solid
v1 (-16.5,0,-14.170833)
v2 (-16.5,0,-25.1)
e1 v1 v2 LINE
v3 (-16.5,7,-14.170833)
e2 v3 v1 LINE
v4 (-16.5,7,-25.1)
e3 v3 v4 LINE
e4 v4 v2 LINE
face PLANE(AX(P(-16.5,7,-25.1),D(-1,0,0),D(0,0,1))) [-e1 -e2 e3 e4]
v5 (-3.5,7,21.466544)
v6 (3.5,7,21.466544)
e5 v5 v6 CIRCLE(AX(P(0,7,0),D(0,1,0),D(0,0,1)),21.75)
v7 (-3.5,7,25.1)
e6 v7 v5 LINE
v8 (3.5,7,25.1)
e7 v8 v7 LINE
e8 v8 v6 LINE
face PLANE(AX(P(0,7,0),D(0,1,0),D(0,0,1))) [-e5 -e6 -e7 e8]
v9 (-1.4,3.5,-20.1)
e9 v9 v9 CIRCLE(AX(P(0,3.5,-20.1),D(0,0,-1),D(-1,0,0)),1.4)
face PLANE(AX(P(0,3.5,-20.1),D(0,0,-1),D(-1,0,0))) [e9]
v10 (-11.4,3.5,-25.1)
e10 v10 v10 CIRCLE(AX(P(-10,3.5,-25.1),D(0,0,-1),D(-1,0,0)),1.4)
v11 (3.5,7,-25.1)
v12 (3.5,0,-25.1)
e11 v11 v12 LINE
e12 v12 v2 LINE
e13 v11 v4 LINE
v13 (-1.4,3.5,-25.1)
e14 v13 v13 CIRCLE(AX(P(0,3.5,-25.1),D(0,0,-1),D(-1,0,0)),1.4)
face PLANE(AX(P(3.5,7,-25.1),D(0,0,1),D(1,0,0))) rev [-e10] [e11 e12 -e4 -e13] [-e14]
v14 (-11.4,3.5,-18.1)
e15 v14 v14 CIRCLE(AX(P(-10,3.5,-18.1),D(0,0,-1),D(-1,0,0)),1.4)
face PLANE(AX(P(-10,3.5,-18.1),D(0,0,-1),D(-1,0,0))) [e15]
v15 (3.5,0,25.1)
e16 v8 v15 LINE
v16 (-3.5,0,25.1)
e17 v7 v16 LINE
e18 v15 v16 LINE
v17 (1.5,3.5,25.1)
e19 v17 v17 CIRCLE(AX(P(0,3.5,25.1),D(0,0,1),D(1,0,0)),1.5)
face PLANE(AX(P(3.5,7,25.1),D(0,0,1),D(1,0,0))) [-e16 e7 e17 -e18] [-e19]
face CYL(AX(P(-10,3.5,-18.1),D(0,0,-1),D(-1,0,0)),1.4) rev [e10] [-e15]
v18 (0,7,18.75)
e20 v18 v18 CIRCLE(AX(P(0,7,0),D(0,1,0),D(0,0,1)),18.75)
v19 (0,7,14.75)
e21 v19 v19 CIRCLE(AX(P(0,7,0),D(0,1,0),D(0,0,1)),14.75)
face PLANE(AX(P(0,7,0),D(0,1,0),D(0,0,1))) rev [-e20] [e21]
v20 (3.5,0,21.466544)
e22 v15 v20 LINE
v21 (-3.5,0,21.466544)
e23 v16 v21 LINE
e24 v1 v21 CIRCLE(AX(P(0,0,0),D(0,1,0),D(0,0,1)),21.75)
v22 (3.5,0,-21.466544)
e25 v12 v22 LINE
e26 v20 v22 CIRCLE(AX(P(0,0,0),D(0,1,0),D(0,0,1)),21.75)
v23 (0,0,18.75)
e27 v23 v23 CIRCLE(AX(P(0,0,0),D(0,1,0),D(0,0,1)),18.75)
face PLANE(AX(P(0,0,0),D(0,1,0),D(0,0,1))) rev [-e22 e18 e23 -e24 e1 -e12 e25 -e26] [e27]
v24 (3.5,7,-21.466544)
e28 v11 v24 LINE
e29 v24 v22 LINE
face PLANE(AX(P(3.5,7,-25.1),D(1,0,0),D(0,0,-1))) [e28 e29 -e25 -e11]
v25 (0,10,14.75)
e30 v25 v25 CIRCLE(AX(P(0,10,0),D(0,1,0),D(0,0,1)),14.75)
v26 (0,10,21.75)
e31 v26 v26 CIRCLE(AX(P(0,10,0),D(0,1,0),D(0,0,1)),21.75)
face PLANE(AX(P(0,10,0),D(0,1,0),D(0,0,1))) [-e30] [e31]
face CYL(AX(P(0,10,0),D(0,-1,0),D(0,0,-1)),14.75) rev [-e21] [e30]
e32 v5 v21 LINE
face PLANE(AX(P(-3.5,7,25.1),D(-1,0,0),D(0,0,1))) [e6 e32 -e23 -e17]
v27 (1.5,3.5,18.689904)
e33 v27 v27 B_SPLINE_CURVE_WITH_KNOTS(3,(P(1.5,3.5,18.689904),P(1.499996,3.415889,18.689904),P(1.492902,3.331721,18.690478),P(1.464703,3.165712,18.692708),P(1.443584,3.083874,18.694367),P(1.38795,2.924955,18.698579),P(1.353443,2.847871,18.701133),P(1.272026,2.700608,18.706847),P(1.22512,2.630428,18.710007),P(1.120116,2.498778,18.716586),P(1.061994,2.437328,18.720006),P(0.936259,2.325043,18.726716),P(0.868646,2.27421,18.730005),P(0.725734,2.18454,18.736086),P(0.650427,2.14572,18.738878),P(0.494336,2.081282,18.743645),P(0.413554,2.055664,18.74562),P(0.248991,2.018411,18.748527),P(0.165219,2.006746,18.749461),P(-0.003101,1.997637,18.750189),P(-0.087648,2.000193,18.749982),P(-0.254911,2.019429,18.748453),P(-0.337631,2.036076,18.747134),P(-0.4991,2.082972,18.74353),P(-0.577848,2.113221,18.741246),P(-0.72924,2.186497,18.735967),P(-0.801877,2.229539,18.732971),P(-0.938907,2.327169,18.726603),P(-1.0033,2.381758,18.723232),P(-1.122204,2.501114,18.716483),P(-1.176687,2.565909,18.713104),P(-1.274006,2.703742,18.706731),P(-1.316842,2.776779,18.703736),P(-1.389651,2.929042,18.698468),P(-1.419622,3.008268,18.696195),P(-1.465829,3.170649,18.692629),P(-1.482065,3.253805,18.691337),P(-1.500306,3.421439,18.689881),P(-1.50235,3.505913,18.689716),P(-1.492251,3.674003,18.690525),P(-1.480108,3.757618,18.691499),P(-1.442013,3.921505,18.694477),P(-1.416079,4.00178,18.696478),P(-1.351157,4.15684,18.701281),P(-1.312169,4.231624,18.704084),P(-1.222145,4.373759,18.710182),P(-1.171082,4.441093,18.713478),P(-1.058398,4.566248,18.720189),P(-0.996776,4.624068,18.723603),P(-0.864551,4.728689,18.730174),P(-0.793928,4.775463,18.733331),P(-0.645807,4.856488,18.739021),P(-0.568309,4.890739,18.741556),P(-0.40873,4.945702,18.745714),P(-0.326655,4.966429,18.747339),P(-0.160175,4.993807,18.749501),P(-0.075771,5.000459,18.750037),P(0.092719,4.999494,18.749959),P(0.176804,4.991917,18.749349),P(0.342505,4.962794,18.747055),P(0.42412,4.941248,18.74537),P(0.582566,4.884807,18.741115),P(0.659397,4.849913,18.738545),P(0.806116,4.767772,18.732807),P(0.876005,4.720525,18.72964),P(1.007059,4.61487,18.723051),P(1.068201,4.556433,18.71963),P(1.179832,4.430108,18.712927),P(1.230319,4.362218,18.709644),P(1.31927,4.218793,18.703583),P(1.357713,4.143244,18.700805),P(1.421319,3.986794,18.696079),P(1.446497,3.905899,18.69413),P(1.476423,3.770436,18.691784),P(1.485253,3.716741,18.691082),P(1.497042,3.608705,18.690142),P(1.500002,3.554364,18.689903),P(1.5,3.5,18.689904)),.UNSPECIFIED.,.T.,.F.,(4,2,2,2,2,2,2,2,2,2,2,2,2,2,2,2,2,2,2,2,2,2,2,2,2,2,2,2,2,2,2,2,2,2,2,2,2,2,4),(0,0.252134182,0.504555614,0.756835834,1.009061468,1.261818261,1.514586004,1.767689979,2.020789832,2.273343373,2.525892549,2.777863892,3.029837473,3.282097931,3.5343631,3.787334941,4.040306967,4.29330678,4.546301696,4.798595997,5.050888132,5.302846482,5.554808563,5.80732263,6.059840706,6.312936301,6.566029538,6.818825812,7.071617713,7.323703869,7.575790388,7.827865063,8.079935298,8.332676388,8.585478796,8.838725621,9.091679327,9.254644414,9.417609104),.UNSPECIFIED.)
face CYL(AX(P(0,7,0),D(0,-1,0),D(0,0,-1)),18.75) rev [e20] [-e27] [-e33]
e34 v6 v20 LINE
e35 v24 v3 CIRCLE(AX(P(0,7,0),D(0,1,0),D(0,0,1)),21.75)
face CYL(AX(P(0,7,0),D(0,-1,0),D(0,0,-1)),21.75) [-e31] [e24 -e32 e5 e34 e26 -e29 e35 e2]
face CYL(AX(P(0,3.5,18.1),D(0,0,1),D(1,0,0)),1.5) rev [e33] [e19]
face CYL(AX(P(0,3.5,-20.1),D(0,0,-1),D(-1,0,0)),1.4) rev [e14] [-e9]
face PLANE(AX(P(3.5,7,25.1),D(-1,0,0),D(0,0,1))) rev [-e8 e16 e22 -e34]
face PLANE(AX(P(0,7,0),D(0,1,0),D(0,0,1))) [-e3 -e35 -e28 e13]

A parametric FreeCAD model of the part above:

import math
import FreeCAD as App
import Part
import Sketcher
Q = App.Units.Quantity

doc = App.newDocument("Part")
params = doc.addObject("Spreadsheet::Sheet", "Params")
for row, (alias, value) in enumerate([
    ("sketch1_diameter", "37.5 mm"),
    ("sketch1_width", "7 mm"),
    ("sketch1_radius", "21.75 mm"),
    ("pad1_length", "7 mm"),
    ("sketch2_diameter", "3 mm"),
    ("pocket1_length", "7 mm"),
    ("sketch3_diameter", "2.8 mm"),
    ("pocket2_length", "5 mm"),
    ("sketch4_width", "13 mm"),
    ("sketch4_radius", "21.75 mm"),
    ("pad2_length", "7 mm"),
    ("sketch5_diameter", "2.8 mm"),
    ("pocket3_length", "7 mm"),
    ("sketch6_diameter", "43.5 mm"),
    ("sketch6_diameter2", "29.5 mm"),
    ("pad3_length", "3 mm"),
], start=1):
    params.set(f"A{row}", alias)
    params.set(f"B{row}", "=" + value)
    params.setAlias(f"B{row}", alias)

body = doc.addObject("PartDesign::Body", "Body")

# Sketch on XZ plane
sketch1 = doc.addObject("Sketcher::SketchObject", "Sketch")
body.addObject(sketch1)
sketch1.AttachmentSupport = (doc.XZ_Plane, [""])
sketch1.MapMode = "FlatFace"
sketch1.addGeometry([
    Part.LineSegment(App.Vector(-3.5, 25.1, 0), App.Vector(3.5, 25.1, 0)),  # 0
    Part.LineSegment(App.Vector(3.5, 25.1, 0), App.Vector(3.5, 21.5, 0)),  # 1
    Part.ArcOfCircle(Part.Circle(App.Vector(0, 0, 0), App.Vector(0, 0, 1), 21.8), math.radians(-81), math.radians(81)),  # 2
    Part.LineSegment(App.Vector(3.5, -21.5, 0), App.Vector(3.5, -25.1, 0)),  # 3
    Part.LineSegment(App.Vector(3.5, -25.1, 0), App.Vector(-3.5, -25.1, 0)),  # 4
    Part.LineSegment(App.Vector(-3.5, -25.1, 0), App.Vector(-3.5, -21.5, 0)),  # 5
    Part.ArcOfCircle(Part.Circle(App.Vector(0, 0, 0), App.Vector(0, 0, 1), 21.8), math.radians(99), math.radians(261)),  # 6
    Part.LineSegment(App.Vector(-3.5, 21.5, 0), App.Vector(-3.5, 25.1, 0)),  # 7
    Part.Circle(App.Vector(0, 0, 0), App.Vector(0, 0, 1), 18.8),  # 8
], False)
sketch1.addConstraint([
    Sketcher.Constraint("Coincident", 0, 2, 1, 1),
    Sketcher.Constraint("Coincident", 1, 2, 2, 2),
    Sketcher.Constraint("Coincident", 2, 1, 3, 1),
    Sketcher.Constraint("Coincident", 3, 2, 4, 1),
    Sketcher.Constraint("Coincident", 4, 2, 5, 1),
    Sketcher.Constraint("Coincident", 5, 2, 6, 2),
    Sketcher.Constraint("Coincident", 6, 1, 7, 1),
    Sketcher.Constraint("Coincident", 7, 2, 0, 1),
    Sketcher.Constraint("Horizontal", 0),
    Sketcher.Constraint("Vertical", 1),
    Sketcher.Constraint("Vertical", 3),
    Sketcher.Constraint("Horizontal", 4),
    Sketcher.Constraint("Vertical", 5),
    Sketcher.Constraint("Vertical", 7),
    Sketcher.Constraint("Coincident", 2, 3, -1, 1),
    Sketcher.Constraint("Coincident", 6, 3, -1, 1),
    Sketcher.Constraint("Coincident", 8, 3, -1, 1),
    Sketcher.Constraint("Equal", 2, 6),
    Sketcher.Constraint("Symmetric", 0, 2, 4, 2, -1, 1),
    Sketcher.Constraint("Horizontal", 2, 1, 5, 2),
    Sketcher.Constraint("Horizontal", 1, 2, 6, 1),
    Sketcher.Constraint("Diameter", 8, Q("37.5 mm")),
    Sketcher.Constraint("DistanceX", 0, 1, 0, 2, Q("7 mm")),
    Sketcher.Constraint("Radius", 2, Q("21.75 mm")),
    Sketcher.Constraint("DistanceY", -1, 1, 0, 2, Q("25.1 mm")),
])
sketch1.setExpression("Constraints[21]", "Params.sketch1_diameter")
sketch1.setExpression("Constraints[22]", "Params.sketch1_width")
sketch1.setExpression("Constraints[23]", "Params.sketch1_radius")
pad1 = doc.addObject("PartDesign::Pad", "Pad")
body.addObject(pad1)
pad1.Profile = sketch1
pad1.setExpression("Length", "Params.pad1_length")
pad1.Reversed = True

# Sketch on XY plane
sketch2 = doc.addObject("Sketcher::SketchObject", "Sketch001")
body.addObject(sketch2)
sketch2.AttachmentSupport = (doc.XY_Plane, [""])
sketch2.MapMode = "FlatFace"
sketch2.AttachmentOffset = App.Placement(App.Vector(0, 0, 25.1), App.Rotation())
sketch2.addGeometry(Part.Circle(App.Vector(0, 3.5, 0), App.Vector(0, 0, 1), 1.5), False)
sketch2.addConstraint([
    Sketcher.Constraint("PointOnObject", 0, 3, -2),
    Sketcher.Constraint("Diameter", 0, Q("3 mm")),
    Sketcher.Constraint("DistanceY", -1, 1, 0, 3, Q("3.5 mm")),
])
sketch2.setExpression("Constraints[1]", "Params.sketch2_diameter")
pocket1 = doc.addObject("PartDesign::Pocket", "Pocket")
body.addObject(pocket1)
pocket1.Profile = sketch2
pocket1.setExpression("Length", "Params.pocket1_length")

# Sketch on XY plane
sketch3 = doc.addObject("Sketcher::SketchObject", "Sketch002")
body.addObject(sketch3)
sketch3.AttachmentSupport = (doc.XY_Plane, [""])
sketch3.MapMode = "FlatFace"
sketch3.AttachmentOffset = App.Placement(App.Vector(0, 0, -25.1), App.Rotation())
sketch3.addGeometry(Part.Circle(App.Vector(0, 3.5, 0), App.Vector(0, 0, 1), 1.4), False)
sketch3.addConstraint([
    Sketcher.Constraint("PointOnObject", 0, 3, -2),
    Sketcher.Constraint("Diameter", 0, Q("2.8 mm")),
    Sketcher.Constraint("DistanceY", -1, 1, 0, 3, Q("3.5 mm")),
])
sketch3.setExpression("Constraints[1]", "Params.sketch3_diameter")
pocket2 = doc.addObject("PartDesign::Pocket", "Pocket001")
body.addObject(pocket2)
pocket2.Profile = sketch3
pocket2.setExpression("Length", "Params.pocket2_length")
pocket2.Reversed = True

# Sketch on XZ plane
sketch4 = doc.addObject("Sketcher::SketchObject", "Sketch003")
body.addObject(sketch4)
sketch4.AttachmentSupport = (doc.XZ_Plane, [""])
sketch4.MapMode = "FlatFace"
sketch4.addGeometry([
    Part.LineSegment(App.Vector(-16.5, -25.1, 0), App.Vector(-3.5, -25.1, 0)),
    Part.LineSegment(App.Vector(-3.5, -25.1, 0), App.Vector(-3.5, -21.5, 0)),
    Part.ArcOfCircle(Part.Circle(App.Vector(0, 0, 0), App.Vector(0, 0, 1), 21.7), math.radians(-139), math.radians(-99)),
    Part.LineSegment(App.Vector(-16.5, -14.2, 0), App.Vector(-16.5, -25.1, 0)),
], False)
sketch4.addConstraint([
    Sketcher.Constraint("Coincident", 0, 2, 1, 1),
    Sketcher.Constraint("Coincident", 1, 2, 2, 2),
    Sketcher.Constraint("Coincident", 2, 1, 3, 1),
    Sketcher.Constraint("Coincident", 3, 2, 0, 1),
    Sketcher.Constraint("Horizontal", 0),
    Sketcher.Constraint("Vertical", 1),
    Sketcher.Constraint("Vertical", 3),
    Sketcher.Constraint("Coincident", 2, 3, -1, 1),
    Sketcher.Constraint("DistanceX", 0, 1, 0, 2, Q("13 mm")),
    Sketcher.Constraint("Radius", 2, Q("21.75 mm")),
    Sketcher.Constraint("DistanceX", 0, 2, -1, 1, Q("3.5 mm")),
    Sketcher.Constraint("DistanceY", 0, 2, -1, 1, Q("25.1 mm")),
])
sketch4.setExpression("Constraints[8]", "Params.sketch4_width")
sketch4.setExpression("Constraints[9]", "Params.sketch4_radius")
pad2 = doc.addObject("PartDesign::Pad", "Pad001")
body.addObject(pad2)
pad2.Profile = sketch4
pad2.setExpression("Length", "Params.pad2_length")
pad2.Reversed = True

# Sketch on XY plane
sketch5 = doc.addObject("Sketcher::SketchObject", "Sketch004")
body.addObject(sketch5)
sketch5.AttachmentSupport = (doc.XY_Plane, [""])
sketch5.MapMode = "FlatFace"
sketch5.AttachmentOffset = App.Placement(App.Vector(0, 0, -25.1), App.Rotation())
sketch5.addGeometry(Part.Circle(App.Vector(-10, 3.5, 0), App.Vector(0, 0, 1), 1.4), False)
sketch5.addConstraint([
    Sketcher.Constraint("Diameter", 0, Q("2.8 mm")),
    Sketcher.Constraint("DistanceX", 0, 3, -1, 1, Q("10 mm")),
    Sketcher.Constraint("DistanceY", -1, 1, 0, 3, Q("3.5 mm")),
])
sketch5.setExpression("Constraints[0]", "Params.sketch5_diameter")
pocket3 = doc.addObject("PartDesign::Pocket", "Pocket002")
body.addObject(pocket3)
pocket3.Profile = sketch5
pocket3.setExpression("Length", "Params.pocket3_length")
pocket3.Reversed = True

# Sketch on XZ plane
sketch6 = doc.addObject("Sketcher::SketchObject", "Sketch005")
body.addObject(sketch6)
sketch6.AttachmentSupport = (doc.XZ_Plane, [""])
sketch6.MapMode = "FlatFace"
sketch6.AttachmentOffset = App.Placement(App.Vector(0, 0, -7), App.Rotation())
sketch6.addGeometry([
    Part.Circle(App.Vector(0, 0, 0), App.Vector(0, 0, 1), 22),
    Part.Circle(App.Vector(0, 0, 0), App.Vector(0, 0, 1), 15),
], False)
sketch6.addConstraint([
    Sketcher.Constraint("Coincident", 0, 3, -1, 1),
    Sketcher.Constraint("Coincident", 1, 3, -1, 1),
    Sketcher.Constraint("Diameter", 0, Q("43.5 mm")),
    Sketcher.Constraint("Diameter", 1, Q("29.5 mm")),
])
sketch6.setExpression("Constraints[2]", "Params.sketch6_diameter")
sketch6.setExpression("Constraints[3]", "Params.sketch6_diameter2")
pad3 = doc.addObject("PartDesign::Pad", "Pad002")
body.addObject(pad3)
pad3.Profile = sketch6
pad3.setExpression("Length", "Params.pad3_length")
pad3.Reversed = True

doc.recompute()
